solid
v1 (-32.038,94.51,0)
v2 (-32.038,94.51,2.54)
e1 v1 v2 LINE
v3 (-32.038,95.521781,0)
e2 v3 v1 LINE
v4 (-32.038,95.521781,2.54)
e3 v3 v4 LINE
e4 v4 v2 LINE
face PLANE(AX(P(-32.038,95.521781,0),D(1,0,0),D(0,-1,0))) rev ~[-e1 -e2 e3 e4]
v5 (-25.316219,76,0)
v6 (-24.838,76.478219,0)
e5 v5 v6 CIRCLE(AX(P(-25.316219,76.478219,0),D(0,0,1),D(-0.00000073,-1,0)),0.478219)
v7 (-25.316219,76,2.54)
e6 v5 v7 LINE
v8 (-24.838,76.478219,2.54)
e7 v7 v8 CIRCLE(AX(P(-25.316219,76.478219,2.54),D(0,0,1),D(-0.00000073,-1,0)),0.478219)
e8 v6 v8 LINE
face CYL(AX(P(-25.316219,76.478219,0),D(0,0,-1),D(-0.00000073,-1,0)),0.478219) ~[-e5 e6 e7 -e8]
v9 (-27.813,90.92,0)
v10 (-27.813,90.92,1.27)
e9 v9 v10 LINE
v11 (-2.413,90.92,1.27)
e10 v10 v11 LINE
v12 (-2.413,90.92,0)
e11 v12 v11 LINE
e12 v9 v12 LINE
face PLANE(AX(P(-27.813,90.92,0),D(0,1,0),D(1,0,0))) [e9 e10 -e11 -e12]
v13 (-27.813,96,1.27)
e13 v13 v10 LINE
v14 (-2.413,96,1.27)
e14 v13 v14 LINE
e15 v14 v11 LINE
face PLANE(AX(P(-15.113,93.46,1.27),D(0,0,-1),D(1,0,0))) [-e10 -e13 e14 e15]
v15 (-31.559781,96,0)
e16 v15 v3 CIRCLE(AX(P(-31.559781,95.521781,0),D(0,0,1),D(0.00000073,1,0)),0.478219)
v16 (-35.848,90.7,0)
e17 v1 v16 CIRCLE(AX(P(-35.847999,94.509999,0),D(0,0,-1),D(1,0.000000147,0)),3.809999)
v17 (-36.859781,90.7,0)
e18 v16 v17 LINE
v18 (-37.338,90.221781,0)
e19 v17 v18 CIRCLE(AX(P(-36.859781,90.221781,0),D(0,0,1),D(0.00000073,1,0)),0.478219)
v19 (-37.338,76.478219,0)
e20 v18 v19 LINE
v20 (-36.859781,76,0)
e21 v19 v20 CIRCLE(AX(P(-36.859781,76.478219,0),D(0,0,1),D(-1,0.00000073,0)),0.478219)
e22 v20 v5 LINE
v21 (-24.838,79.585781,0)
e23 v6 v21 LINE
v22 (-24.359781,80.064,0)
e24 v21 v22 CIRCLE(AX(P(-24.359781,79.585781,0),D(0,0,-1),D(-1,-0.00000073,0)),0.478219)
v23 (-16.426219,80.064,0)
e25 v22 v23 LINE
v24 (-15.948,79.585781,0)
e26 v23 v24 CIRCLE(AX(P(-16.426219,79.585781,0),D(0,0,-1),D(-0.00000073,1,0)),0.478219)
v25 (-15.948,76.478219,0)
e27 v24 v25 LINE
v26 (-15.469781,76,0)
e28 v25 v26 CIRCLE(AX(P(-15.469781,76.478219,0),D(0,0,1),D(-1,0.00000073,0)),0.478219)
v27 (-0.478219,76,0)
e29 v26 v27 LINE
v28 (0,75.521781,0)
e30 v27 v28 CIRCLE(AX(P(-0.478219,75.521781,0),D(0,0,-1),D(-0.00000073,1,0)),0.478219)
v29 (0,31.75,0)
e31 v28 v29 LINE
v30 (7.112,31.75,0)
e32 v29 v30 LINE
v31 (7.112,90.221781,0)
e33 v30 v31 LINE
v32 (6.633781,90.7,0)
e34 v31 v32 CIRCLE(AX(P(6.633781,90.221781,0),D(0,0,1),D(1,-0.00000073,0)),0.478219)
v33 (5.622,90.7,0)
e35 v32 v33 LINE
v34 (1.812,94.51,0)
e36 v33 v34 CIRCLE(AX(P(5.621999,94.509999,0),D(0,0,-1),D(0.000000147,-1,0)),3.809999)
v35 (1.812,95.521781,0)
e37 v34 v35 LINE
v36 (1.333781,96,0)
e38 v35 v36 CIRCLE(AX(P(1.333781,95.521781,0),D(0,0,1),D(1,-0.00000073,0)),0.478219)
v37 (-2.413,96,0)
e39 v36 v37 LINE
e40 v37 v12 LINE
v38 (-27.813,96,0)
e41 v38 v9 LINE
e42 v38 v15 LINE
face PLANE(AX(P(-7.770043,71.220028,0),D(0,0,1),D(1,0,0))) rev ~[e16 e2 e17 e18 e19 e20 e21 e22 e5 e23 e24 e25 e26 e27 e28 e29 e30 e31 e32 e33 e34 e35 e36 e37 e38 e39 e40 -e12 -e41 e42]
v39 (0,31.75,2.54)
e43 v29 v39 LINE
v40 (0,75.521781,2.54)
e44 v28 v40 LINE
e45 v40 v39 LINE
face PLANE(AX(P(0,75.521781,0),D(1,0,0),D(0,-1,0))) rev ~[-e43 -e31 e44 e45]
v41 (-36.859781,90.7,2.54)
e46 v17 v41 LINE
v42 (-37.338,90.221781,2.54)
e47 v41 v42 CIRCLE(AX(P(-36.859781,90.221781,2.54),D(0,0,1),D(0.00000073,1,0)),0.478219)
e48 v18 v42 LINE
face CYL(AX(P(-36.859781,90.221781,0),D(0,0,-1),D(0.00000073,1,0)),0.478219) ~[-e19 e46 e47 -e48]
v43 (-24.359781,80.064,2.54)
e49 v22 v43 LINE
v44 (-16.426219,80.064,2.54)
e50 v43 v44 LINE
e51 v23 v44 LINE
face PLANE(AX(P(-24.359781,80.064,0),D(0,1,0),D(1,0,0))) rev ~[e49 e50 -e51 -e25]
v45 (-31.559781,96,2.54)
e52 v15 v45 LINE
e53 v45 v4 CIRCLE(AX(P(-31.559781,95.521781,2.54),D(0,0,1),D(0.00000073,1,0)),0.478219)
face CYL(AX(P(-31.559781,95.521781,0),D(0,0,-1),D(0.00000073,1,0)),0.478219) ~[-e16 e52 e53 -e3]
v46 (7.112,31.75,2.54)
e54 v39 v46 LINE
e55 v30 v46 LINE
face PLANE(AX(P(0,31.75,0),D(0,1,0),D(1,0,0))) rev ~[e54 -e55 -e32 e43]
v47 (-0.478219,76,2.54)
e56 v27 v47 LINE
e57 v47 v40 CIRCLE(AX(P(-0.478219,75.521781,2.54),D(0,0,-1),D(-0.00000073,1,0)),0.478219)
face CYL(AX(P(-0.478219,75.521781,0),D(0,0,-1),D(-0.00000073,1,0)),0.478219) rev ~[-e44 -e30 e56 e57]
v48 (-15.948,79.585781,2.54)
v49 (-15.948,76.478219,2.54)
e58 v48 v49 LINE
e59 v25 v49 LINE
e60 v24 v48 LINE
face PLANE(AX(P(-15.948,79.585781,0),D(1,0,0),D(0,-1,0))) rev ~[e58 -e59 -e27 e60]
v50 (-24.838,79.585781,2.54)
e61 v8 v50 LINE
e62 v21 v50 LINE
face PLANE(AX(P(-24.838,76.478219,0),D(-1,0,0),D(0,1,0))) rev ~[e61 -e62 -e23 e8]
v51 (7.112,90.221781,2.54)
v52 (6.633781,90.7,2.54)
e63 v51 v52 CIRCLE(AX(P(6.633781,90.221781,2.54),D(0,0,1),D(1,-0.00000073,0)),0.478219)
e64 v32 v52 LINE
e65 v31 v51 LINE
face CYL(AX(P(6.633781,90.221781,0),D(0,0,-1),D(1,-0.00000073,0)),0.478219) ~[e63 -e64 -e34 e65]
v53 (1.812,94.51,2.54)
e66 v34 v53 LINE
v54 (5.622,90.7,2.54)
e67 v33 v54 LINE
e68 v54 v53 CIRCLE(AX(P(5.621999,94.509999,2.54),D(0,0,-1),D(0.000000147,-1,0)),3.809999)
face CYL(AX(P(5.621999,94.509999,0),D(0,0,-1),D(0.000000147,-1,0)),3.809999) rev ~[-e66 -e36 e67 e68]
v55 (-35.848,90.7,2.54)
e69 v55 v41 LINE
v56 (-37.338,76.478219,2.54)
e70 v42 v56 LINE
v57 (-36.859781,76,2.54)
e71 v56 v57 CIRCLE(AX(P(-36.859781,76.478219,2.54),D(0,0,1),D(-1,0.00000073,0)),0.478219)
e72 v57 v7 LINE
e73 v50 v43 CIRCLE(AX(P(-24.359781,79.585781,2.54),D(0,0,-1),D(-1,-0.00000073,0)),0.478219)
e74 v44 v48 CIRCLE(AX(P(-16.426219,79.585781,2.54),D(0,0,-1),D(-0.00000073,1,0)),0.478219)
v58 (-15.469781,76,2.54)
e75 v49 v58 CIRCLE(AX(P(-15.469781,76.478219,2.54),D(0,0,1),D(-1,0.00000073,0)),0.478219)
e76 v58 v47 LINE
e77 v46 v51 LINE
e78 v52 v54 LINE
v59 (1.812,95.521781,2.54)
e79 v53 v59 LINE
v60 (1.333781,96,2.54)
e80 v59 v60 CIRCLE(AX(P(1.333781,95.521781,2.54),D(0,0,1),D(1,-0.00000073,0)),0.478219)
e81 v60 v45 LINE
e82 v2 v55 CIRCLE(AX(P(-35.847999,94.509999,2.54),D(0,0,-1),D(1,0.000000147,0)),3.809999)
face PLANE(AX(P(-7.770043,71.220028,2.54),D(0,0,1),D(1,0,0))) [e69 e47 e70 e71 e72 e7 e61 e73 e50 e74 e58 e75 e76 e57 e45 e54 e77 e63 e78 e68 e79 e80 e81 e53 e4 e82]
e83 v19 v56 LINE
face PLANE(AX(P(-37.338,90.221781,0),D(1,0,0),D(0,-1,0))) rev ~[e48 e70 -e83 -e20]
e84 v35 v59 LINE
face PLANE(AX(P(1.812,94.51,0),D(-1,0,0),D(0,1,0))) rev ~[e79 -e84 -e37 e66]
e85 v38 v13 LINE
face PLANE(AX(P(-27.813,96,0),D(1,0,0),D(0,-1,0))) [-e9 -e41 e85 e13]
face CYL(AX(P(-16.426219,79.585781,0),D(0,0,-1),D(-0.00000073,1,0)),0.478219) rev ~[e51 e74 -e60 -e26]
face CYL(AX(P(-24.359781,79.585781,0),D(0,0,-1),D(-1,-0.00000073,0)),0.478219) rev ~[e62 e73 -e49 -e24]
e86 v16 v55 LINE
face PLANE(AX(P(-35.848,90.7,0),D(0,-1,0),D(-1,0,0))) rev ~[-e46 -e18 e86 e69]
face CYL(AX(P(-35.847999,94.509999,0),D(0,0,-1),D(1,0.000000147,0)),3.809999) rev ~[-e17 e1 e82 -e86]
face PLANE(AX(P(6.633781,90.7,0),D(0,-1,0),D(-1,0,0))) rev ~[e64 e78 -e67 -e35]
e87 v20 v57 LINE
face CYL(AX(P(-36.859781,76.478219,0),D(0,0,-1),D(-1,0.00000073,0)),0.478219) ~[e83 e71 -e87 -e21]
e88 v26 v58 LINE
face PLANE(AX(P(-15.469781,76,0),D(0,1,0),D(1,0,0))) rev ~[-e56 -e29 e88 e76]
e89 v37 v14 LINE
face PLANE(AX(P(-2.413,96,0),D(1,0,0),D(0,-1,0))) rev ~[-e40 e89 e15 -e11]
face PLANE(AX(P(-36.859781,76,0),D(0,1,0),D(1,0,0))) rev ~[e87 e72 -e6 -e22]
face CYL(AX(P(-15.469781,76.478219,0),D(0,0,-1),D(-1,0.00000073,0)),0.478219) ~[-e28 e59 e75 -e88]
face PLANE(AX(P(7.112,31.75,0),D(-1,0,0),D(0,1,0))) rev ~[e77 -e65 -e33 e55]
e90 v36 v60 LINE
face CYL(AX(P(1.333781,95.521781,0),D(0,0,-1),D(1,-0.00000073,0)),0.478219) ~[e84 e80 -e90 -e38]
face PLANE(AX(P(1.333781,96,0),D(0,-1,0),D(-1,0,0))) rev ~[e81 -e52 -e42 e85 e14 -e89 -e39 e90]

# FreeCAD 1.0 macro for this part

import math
import FreeCAD as App
import Part
import Sketcher
from FreeCAD import Vector
Q = App.Units.Quantity


def add_polygon(sketch, points):
    """Adds a closed chain of lines whose ends are joined by coincident constraints."""
    first, n = sketch.GeometryCount, len(points)
    for a, b in zip(points, points[1:] + points[:1]):
        sketch.addGeometry(Part.LineSegment(App.Vector(*a, 0), App.Vector(*b, 0)), False)
    for i in range(n):
        sketch.addConstraint(Sketcher.Constraint("Coincident", first + i, 2, first + (i + 1) % n, 1))

doc = App.newDocument("Part")
body = doc.addObject("PartDesign::Body", "Body")

sketch1 = doc.addObject("Sketcher::SketchObject", "Sketch")
body.addObject(sketch1)
sketch1.AttachmentSupport = (doc.XY_Plane, [""])
sketch1.MapMode = "FlatFace"
sketch1.addGeometry([
    Part.LineSegment(Vector(0, 75.52, 0), Vector(0, 31.75, 0)),
    Part.LineSegment(Vector(0, 31.75, 0), Vector(7.11, 31.75, 0)),
    Part.LineSegment(Vector(7.11, 31.75, 0), Vector(7.11, 90.22, 0)),
    Part.ArcOfCircle(Part.Circle(Vector(6.63, 90.22, 0), Vector(0, 0, 1), 0.48), math.radians(0), math.radians(90)),
    Part.LineSegment(Vector(6.63, 90.7, 0), Vector(5.62, 90.7, 0)),
    Part.ArcOfCircle(Part.Circle(Vector(5.62, 94.51, 0), Vector(0, 0, 1), 3.81), math.radians(180), math.radians(270)),
    Part.LineSegment(Vector(1.81, 94.51, 0), Vector(1.81, 95.52, 0)),
    Part.ArcOfCircle(Part.Circle(Vector(1.33, 95.52, 0), Vector(0, 0, 1), 0.48), math.radians(0), math.radians(90)),
    Part.LineSegment(Vector(1.33, 96, 0), Vector(-31.56, 96, 0)),
    Part.ArcOfCircle(Part.Circle(Vector(-31.56, 95.52, 0), Vector(0, 0, 1), 0.48), math.radians(90), math.radians(180)),
    Part.LineSegment(Vector(-32.04, 95.52, 0), Vector(-32.04, 94.51, 0)),
    Part.ArcOfCircle(Part.Circle(Vector(-35.85, 94.51, 0), Vector(0, 0, 1), 3.81), math.radians(-90), math.radians(0)),
    Part.LineSegment(Vector(-35.85, 90.7, 0), Vector(-36.86, 90.7, 0)),
    Part.ArcOfCircle(Part.Circle(Vector(-36.86, 90.22, 0), Vector(0, 0, 1), 0.48), math.radians(90), math.radians(180)),
    Part.LineSegment(Vector(-37.34, 90.22, 0), Vector(-37.34, 76.48, 0)),
    Part.ArcOfCircle(Part.Circle(Vector(-36.86, 76.48, 0), Vector(0, 0, 1), 0.48), math.radians(180), math.radians(270)),
    Part.LineSegment(Vector(-36.86, 76, 0), Vector(-25.32, 76, 0)),
    Part.ArcOfCircle(Part.Circle(Vector(-25.32, 76.48, 0), Vector(0, 0, 1), 0.48), math.radians(-90), math.radians(0)),
    Part.LineSegment(Vector(-24.84, 76.48, 0), Vector(-24.84, 79.59, 0)),
    Part.ArcOfCircle(Part.Circle(Vector(-24.36, 79.59, 0), Vector(0, 0, 1), 0.48), math.radians(90), math.radians(180)),
    Part.LineSegment(Vector(-24.36, 80.06, 0), Vector(-16.43, 80.06, 0)),
    Part.ArcOfCircle(Part.Circle(Vector(-16.43, 79.59, 0), Vector(0, 0, 1), 0.48), math.radians(0), math.radians(90)),
    Part.LineSegment(Vector(-15.95, 79.59, 0), Vector(-15.95, 76.48, 0)),
    Part.ArcOfCircle(Part.Circle(Vector(-15.47, 76.48, 0), Vector(0, 0, 1), 0.48), math.radians(180), math.radians(270)),
    Part.LineSegment(Vector(-15.47, 76, 0), Vector(-0.48, 76, 0)),
    Part.ArcOfCircle(Part.Circle(Vector(-0.48, 75.52, 0), Vector(0, 0, 1), 0.48), math.radians(0), math.radians(90)),
], False)
sketch1.addConstraint([
    Sketcher.Constraint("Coincident", 0, 2, 1, 1),
    Sketcher.Constraint("Coincident", 1, 2, 2, 1),
    Sketcher.Constraint("Tangent", 2, 2, 3, 1),
    Sketcher.Constraint("Tangent", 3, 2, 4, 1),
    Sketcher.Constraint("Tangent", 4, 2, 5, 2),
    Sketcher.Constraint("Tangent", 5, 1, 6, 1),
    Sketcher.Constraint("Tangent", 6, 2, 7, 1),
    Sketcher.Constraint("Tangent", 7, 2, 8, 1),
    Sketcher.Constraint("Tangent", 8, 2, 9, 1),
    Sketcher.Constraint("Tangent", 9, 2, 10, 1),
    Sketcher.Constraint("Tangent", 10, 2, 11, 2),
    Sketcher.Constraint("Tangent", 11, 1, 12, 1),
    Sketcher.Constraint("Tangent", 12, 2, 13, 1),
    Sketcher.Constraint("Tangent", 13, 2, 14, 1),
    Sketcher.Constraint("Tangent", 14, 2, 15, 1),
    Sketcher.Constraint("Tangent", 15, 2, 16, 1),
    Sketcher.Constraint("Tangent", 16, 2, 17, 1),
    Sketcher.Constraint("Tangent", 17, 2, 18, 1),
    Sketcher.Constraint("Tangent", 18, 2, 19, 2),
    Sketcher.Constraint("Tangent", 19, 1, 20, 1),
    Sketcher.Constraint("Tangent", 20, 2, 21, 2),
    Sketcher.Constraint("Tangent", 21, 1, 22, 1),
    Sketcher.Constraint("Tangent", 22, 2, 23, 1),
    Sketcher.Constraint("Tangent", 23, 2, 24, 1),
    Sketcher.Constraint("Tangent", 24, 2, 25, 2),
    Sketcher.Constraint("Tangent", 25, 1, 0, 1),
    Sketcher.Constraint("Vertical", 0),
    Sketcher.Constraint("Horizontal", 1),
    Sketcher.Constraint("Vertical", 2),
    Sketcher.Constraint("Horizontal", 4),
    Sketcher.Constraint("Vertical", 6),
    Sketcher.Constraint("Horizontal", 8),
    Sketcher.Constraint("Vertical", 10),
    Sketcher.Constraint("Horizontal", 12),
    Sketcher.Constraint("Vertical", 14),
    Sketcher.Constraint("Horizontal", 16),
    Sketcher.Constraint("Vertical", 18),
    Sketcher.Constraint("Horizontal", 20),
    Sketcher.Constraint("Vertical", 22),
    Sketcher.Constraint("Horizontal", 24),
    Sketcher.Constraint("Equal", 3, 7),
    Sketcher.Constraint("Equal", 7, 9),
    Sketcher.Constraint("Equal", 5, 11),
    Sketcher.Constraint("Equal", 9, 13),
    Sketcher.Constraint("Equal", 13, 15),
    Sketcher.Constraint("Equal", 15, 17),
    Sketcher.Constraint("Equal", 17, 19),
    Sketcher.Constraint("Equal", 19, 21),
    Sketcher.Constraint("Equal", 21, 23),
    Sketcher.Constraint("Equal", 23, 25),
    Sketcher.Constraint("PointOnObject", 0, 2, -2),
    Sketcher.Constraint("Horizontal", 5, 3, 11, 3),
    Sketcher.Constraint("Horizontal", 17, 3, 23, 3),
    Sketcher.Constraint("Equal", 4, 12),
    Sketcher.Constraint("Equal", 12, 6),
    Sketcher.Constraint("Radius", 5, Q("0.15 in")),
    Sketcher.Constraint("DistanceX", 1, 1, 1, 2, Q("0.28 in")),
    Sketcher.Constraint("DistanceY", -1, 1, 0, 2, Q("1.25 in")),
    Sketcher.Constraint("DistanceX", 13, 2, -1, 1, Q("1.47 in")),
    Sketcher.Constraint("DistanceX", 17, 3, 21, 3, Q("0.35 in")),
    Sketcher.Constraint("DistanceY", 25, 3, 21, 3, Q("0.16 in")),
    Sketcher.Constraint("Radius", 3, 0.478219),
    Sketcher.Constraint("DistanceY", -1, 1, 7, 3, Q("3.7607001 in")),
    Sketcher.Constraint("DistanceX", 4, 2, 4, 1, 1.011781),
    Sketcher.Constraint("DistanceX", 16, 1, 16, 2, 11.543562),
    Sketcher.Constraint("DistanceY", 0, 2, 0, 1, 43.771781),
])
pad1 = doc.addObject("PartDesign::Pad", "Pad")
body.addObject(pad1)
pad1.Profile = sketch1
pad1.Length = Q("0.1 in")

sketch2 = doc.addObject("Sketcher::SketchObject", "Sketch001")
body.addObject(sketch2)
sketch2.AttachmentSupport = (doc.XY_Plane, [""])
sketch2.MapMode = "FlatFace"
add_polygon(sketch2, [(-28, 91), (-28, 96), (-2, 96), (-2, 91)])
sketch2.addConstraint([
    Sketcher.Constraint("Vertical", 0),
    Sketcher.Constraint("Horizontal", 1),
    Sketcher.Constraint("Vertical", 2),
    Sketcher.Constraint("Horizontal", 3),
    Sketcher.Constraint("DistanceX", 1, 1, 1, 2, Q("1 in")),
    Sketcher.Constraint("DistanceY", 0, 1, 0, 2, Q("0.2 in")),
    Sketcher.Constraint("DistanceX", 0, 2, -1, 1, Q("1.095 in")),
    Sketcher.Constraint("DistanceY", -1, 1, 0, 2, 96.0),
])
pocket1 = doc.addObject("PartDesign::Pocket", "Pocket")
body.addObject(pocket1)
pocket1.Profile = sketch2
pocket1.Length = Q("0.05 in")
pocket1.Reversed = True

doc.recompute()
